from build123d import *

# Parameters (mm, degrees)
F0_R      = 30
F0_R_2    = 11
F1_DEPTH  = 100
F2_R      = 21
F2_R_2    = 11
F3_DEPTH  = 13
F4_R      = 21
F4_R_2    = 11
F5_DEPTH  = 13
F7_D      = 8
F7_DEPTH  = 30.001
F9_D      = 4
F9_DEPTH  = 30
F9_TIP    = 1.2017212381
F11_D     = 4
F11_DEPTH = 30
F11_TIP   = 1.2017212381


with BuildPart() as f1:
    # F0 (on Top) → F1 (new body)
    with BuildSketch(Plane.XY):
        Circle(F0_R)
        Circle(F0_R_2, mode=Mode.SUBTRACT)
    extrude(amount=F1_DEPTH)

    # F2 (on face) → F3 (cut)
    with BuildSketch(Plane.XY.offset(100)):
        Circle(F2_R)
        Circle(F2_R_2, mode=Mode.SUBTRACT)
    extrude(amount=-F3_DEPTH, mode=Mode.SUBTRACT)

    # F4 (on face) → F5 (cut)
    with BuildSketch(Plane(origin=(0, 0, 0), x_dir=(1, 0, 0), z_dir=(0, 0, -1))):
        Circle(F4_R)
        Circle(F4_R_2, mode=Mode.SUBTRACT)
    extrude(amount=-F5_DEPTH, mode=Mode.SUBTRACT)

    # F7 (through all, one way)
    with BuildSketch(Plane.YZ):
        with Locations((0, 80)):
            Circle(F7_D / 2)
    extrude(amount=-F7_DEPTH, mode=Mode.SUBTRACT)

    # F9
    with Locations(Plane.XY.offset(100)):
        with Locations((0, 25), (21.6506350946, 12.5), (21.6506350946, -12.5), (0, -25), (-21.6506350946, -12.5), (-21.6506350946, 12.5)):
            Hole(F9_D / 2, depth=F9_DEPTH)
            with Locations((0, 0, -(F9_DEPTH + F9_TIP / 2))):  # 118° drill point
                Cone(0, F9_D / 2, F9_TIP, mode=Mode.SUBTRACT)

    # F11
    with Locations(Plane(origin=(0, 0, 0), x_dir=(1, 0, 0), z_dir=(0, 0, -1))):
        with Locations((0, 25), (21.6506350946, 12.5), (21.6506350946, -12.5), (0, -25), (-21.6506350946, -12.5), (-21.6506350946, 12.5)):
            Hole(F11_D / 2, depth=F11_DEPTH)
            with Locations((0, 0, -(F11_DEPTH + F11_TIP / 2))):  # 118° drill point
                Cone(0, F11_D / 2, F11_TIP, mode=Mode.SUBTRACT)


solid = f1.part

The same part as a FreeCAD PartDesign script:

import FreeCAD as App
import Part
import Sketcher
from FreeCAD import Vector
Q = App.Units.Quantity

doc = App.newDocument("Part")
body = doc.addObject("PartDesign::Body", "Body")

# Sketch on XY plane
sketch1 = doc.addObject("Sketcher::SketchObject", "Sketch")
body.addObject(sketch1)
sketch1.AttachmentSupport = (doc.XY_Plane, [""])
sketch1.MapMode = "FlatFace"
sketch1.addGeometry([
    Part.Circle(Vector(0, 0, 0), Vector(0, 0, 1), 30),
    Part.Circle(Vector(0, 0, 0), Vector(0, 0, 1), 11),
], False)
sketch1.addConstraint([
    Sketcher.Constraint("Coincident", 0, 3, -1, 1),
    Sketcher.Constraint("Coincident", 1, 3, -1, 1),
    Sketcher.Constraint("Diameter", 0, Q("60 mm")),
    Sketcher.Constraint("Diameter", 1, Q("22 mm")),
])
pad1 = doc.addObject("PartDesign::Pad", "Pad")
body.addObject(pad1)
pad1.Profile = sketch1
pad1.Length = 100

# Sketch on XY plane
sketch2 = doc.addObject("Sketcher::SketchObject", "Sketch001")
body.addObject(sketch2)
sketch2.AttachmentSupport = (doc.XY_Plane, [""])
sketch2.MapMode = "FlatFace"
sketch2.AttachmentOffset = App.Placement(Vector(0, 0, 100), App.Rotation())
sketch2.addGeometry([
    Part.Circle(Vector(0, 0, 0), Vector(0, 0, 1), 21),
    Part.Circle(Vector(0, 0, 0), Vector(0, 0, 1), 11),
], False)
sketch2.addConstraint([
    Sketcher.Constraint("Coincident", 0, 3, -1, 1),
    Sketcher.Constraint("Coincident", 1, 3, -1, 1),
    Sketcher.Constraint("Diameter", 0, Q("42 mm")),
    Sketcher.Constraint("Diameter", 1, Q("22 mm")),
])
pocket1 = doc.addObject("PartDesign::Pocket", "Pocket")
body.addObject(pocket1)
pocket1.Profile = sketch2
pocket1.Length = 13

# Sketch on XY plane
sketch3 = doc.addObject("Sketcher::SketchObject", "Sketch002")
body.addObject(sketch3)
sketch3.AttachmentSupport = (doc.XY_Plane, [""])
sketch3.MapMode = "FlatFace"
sketch3.addGeometry([
    Part.Circle(Vector(0, 0, 0), Vector(0, 0, 1), 21),
    Part.Circle(Vector(0, 0, 0), Vector(0, 0, 1), 11),
], False)
sketch3.addConstraint([
    Sketcher.Constraint("Coincident", 0, 3, -1, 1),
    Sketcher.Constraint("Coincident", 1, 3, -1, 1),
    Sketcher.Constraint("Diameter", 0, Q("42 mm")),
    Sketcher.Constraint("Diameter", 1, Q("22 mm")),
])
pocket2 = doc.addObject("PartDesign::Pocket", "Pocket001")
body.addObject(pocket2)
pocket2.Profile = sketch3
pocket2.Length = 13
pocket2.Reversed = True

# Sketch on YZ plane
sketch4 = doc.addObject("Sketcher::SketchObject", "Sketch003")
body.addObject(sketch4)
sketch4.AttachmentSupport = (doc.YZ_Plane, [""])
sketch4.MapMode = "FlatFace"
sketch4.addGeometry(Part.Circle(Vector(0, 80, 0), Vector(0, 0, 1), 4), False)
sketch4.addConstraint([
    Sketcher.Constraint("PointOnObject", 0, 3, -2),
    Sketcher.Constraint("Diameter", 0, Q("8 mm")),
    Sketcher.Constraint("DistanceY", -1, 1, 0, 3, Q("80 mm")),
])
pocket3 = doc.addObject("PartDesign::Pocket", "Pocket002")
body.addObject(pocket3)
pocket3.Profile = sketch4
pocket3.Type = "ThroughAll"

# Sketch on XY plane
sketch5 = doc.addObject("Sketcher::SketchObject", "Sketch004")
body.addObject(sketch5)
sketch5.AttachmentSupport = (doc.XY_Plane, [""])
sketch5.MapMode = "FlatFace"
sketch5.AttachmentOffset = App.Placement(Vector(0, 0, 100), App.Rotation())
sketch5.addGeometry([
    Part.Circle(Vector(0, 25, 0), Vector(0, 0, 1), 2),  # 0
    Part.Circle(Vector(21.7, 12.5, 0), Vector(0, 0, 1), 2),  # 1
    Part.Circle(Vector(21.7, -12.5, 0), Vector(0, 0, 1), 2),  # 2
    Part.Circle(Vector(0, -25, 0), Vector(0, 0, 1), 2),  # 3
    Part.Circle(Vector(-21.7, -12.5, 0), Vector(0, 0, 1), 2),  # 4
    Part.Circle(Vector(-21.7, 12.5, 0), Vector(0, 0, 1), 2),  # 5
], False)
sketch5.addConstraint([
    Sketcher.Constraint("Equal", 0, 1),
    Sketcher.Constraint("Equal", 1, 2),
    Sketcher.Constraint("Equal", 2, 3),
    Sketcher.Constraint("Equal", 3, 4),
    Sketcher.Constraint("Equal", 4, 5),
    Sketcher.Constraint("Symmetric", 0, 3, 3, 3, -1, 1),
    Sketcher.Constraint("Symmetric", 1, 3, 4, 3, -1, 1),
    Sketcher.Constraint("Symmetric", 2, 3, 5, 3, -1, 1),
    Sketcher.Constraint("Symmetric", 2, 3, 4, 3, -2),
    Sketcher.Constraint("PointOnObject", 0, 3, -2),
    Sketcher.Constraint("Diameter", 0, Q("4 mm")),
    Sketcher.Constraint("DistanceY", -1, 1, 0, 3, Q("25 mm")),
    Sketcher.Constraint("DistanceY", 2, 3, 1, 3, Q("25 mm")),
    Sketcher.Constraint("DistanceX", 4, 3, 2, 3, Q("43.30127 mm")),
])
doc.recompute()
hole = doc.addObject("PartDesign::Hole", "Hole")
body.addObject(hole)
hole.Profile = sketch5
hole.ThreadType = "None"
hole.Diameter = 4
hole.DepthType = "Dimension"
hole.Depth = 30
hole.DrillPoint = "Angled"
hole.DrillPointAngle = 118

# Sketch on XY plane
sketch6 = doc.addObject("Sketcher::SketchObject", "Sketch005")
body.addObject(sketch6)
sketch6.AttachmentSupport = (doc.XY_Plane, [""])
sketch6.MapMode = "FlatFace"
sketch6.addGeometry([
    Part.Circle(Vector(0, -25, 0), Vector(0, 0, 1), 2),  # 0
    Part.Circle(Vector(21.7, -12.5, 0), Vector(0, 0, 1), 2),  # 1
    Part.Circle(Vector(21.7, 12.5, 0), Vector(0, 0, 1), 2),  # 2
    Part.Circle(Vector(0, 25, 0), Vector(0, 0, 1), 2),  # 3
    Part.Circle(Vector(-21.7, 12.5, 0), Vector(0, 0, 1), 2),  # 4
    Part.Circle(Vector(-21.7, -12.5, 0), Vector(0, 0, 1), 2),  # 5
], False)
sketch6.addConstraint([
    Sketcher.Constraint("Equal", 0, 1),
    Sketcher.Constraint("Equal", 1, 2),
    Sketcher.Constraint("Equal", 2, 3),
    Sketcher.Constraint("Equal", 3, 4),
    Sketcher.Constraint("Equal", 4, 5),
    Sketcher.Constraint("Symmetric", 0, 3, 3, 3, -1, 1),
    Sketcher.Constraint("Symmetric", 1, 3, 4, 3, -1, 1),
    Sketcher.Constraint("Symmetric", 2, 3, 5, 3, -1, 1),
    Sketcher.Constraint("Symmetric", 2, 3, 4, 3, -2),
    Sketcher.Constraint("PointOnObject", 0, 3, -2),
    Sketcher.Constraint("Diameter", 0, Q("4 mm")),
    Sketcher.Constraint("DistanceY", 0, 3, -1, 1, Q("25 mm")),
    Sketcher.Constraint("DistanceY", 1, 3, 2, 3, Q("25 mm")),
    Sketcher.Constraint("DistanceX", 4, 3, 2, 3, Q("43.30127 mm")),
])
doc.recompute()
hole2 = doc.addObject("PartDesign::Hole", "Hole001")
body.addObject(hole2)
hole2.Profile = sketch6
hole2.ThreadType = "None"
hole2.Diameter = 4
hole2.DepthType = "Dimension"
hole2.Depth = 30
hole2.DrillPoint = "Angled"
hole2.DrillPointAngle = 118
hole2.Reversed = True

doc.recompute()
